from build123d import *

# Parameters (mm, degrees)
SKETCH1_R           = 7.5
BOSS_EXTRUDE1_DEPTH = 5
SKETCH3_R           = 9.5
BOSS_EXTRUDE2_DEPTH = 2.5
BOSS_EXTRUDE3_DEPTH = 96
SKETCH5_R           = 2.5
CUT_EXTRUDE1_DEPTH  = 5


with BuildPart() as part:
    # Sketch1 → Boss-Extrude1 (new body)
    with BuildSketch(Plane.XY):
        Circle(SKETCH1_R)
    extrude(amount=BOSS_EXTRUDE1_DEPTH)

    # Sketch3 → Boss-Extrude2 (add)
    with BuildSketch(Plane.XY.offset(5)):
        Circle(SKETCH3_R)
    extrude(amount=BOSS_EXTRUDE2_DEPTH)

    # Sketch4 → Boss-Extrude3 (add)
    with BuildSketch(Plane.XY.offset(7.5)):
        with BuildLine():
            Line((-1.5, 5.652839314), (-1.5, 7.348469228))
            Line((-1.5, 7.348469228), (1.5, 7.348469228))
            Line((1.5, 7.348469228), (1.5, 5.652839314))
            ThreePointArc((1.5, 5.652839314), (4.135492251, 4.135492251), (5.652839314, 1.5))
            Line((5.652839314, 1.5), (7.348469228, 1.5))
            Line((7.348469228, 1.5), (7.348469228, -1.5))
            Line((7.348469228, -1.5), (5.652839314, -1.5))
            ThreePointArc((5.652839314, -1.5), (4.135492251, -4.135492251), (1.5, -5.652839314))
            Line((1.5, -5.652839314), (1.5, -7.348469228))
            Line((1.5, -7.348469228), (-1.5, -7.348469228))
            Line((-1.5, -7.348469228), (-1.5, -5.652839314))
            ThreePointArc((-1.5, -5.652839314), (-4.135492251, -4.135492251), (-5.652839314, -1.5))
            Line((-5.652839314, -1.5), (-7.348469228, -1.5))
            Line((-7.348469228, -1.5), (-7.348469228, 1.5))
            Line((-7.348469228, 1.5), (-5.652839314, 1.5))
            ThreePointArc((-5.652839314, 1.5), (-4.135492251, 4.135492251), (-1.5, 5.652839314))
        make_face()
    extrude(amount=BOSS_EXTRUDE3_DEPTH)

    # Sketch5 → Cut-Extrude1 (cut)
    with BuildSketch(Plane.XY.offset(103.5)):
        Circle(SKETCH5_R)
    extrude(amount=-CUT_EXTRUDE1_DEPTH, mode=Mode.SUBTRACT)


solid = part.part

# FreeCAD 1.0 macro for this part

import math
import FreeCAD as App
import Part
import Sketcher
from FreeCAD import Vector

doc = App.newDocument("Part")
body = doc.addObject("PartDesign::Body", "Body")

sketch1 = doc.addObject("Sketcher::SketchObject", "Sketch")
body.addObject(sketch1)
sketch1.AttachmentSupport = (doc.XY_Plane, [""])
sketch1.MapMode = "FlatFace"
sketch1.addGeometry(Part.Circle(Vector(0, 0, 0), Vector(0, 0, 1), 8), False)
sketch1.addConstraint([
    Sketcher.Constraint("Coincident", 0, 3, -1, 1),
    Sketcher.Constraint("Diameter", 0, 15.0),
])
pad1 = doc.addObject("PartDesign::Pad", "Pad")
body.addObject(pad1)
pad1.Profile = sketch1
pad1.Length = 5

sketch2 = doc.addObject("Sketcher::SketchObject", "Sketch001")
body.addObject(sketch2)
sketch2.AttachmentSupport = (doc.XY_Plane, [""])
sketch2.MapMode = "FlatFace"
sketch2.AttachmentOffset = App.Placement(Vector(0, 0, 5), App.Rotation())
sketch2.addGeometry(Part.Circle(Vector(0, 0, 0), Vector(0, 0, 1), 10), False)
sketch2.addConstraint([
    Sketcher.Constraint("Coincident", 0, 3, -1, 1),
    Sketcher.Constraint("Diameter", 0, 19.0),
])
pad2 = doc.addObject("PartDesign::Pad", "Pad001")
body.addObject(pad2)
pad2.Profile = sketch2
pad2.Length = 2.5

sketch3 = doc.addObject("Sketcher::SketchObject", "Sketch002")
body.addObject(sketch3)
sketch3.AttachmentSupport = (doc.XY_Plane, [""])
sketch3.MapMode = "FlatFace"
sketch3.AttachmentOffset = App.Placement(Vector(0, 0, 7.5), App.Rotation())
sketch3.addGeometry([
    Part.LineSegment(Vector(-1.5, 7.3, 0), Vector(-1.5, 5.7, 0)),
    Part.ArcOfCircle(Part.Circle(Vector(0, 0, 0), Vector(0, 0, 1), 5.8), math.radians(105), math.radians(165)),
    Part.LineSegment(Vector(-5.7, 1.5, 0), Vector(-7.3, 1.5, 0)),
    Part.LineSegment(Vector(-7.3, 1.5, 0), Vector(-7.3, -1.5, 0)),
    Part.LineSegment(Vector(-7.3, -1.5, 0), Vector(-5.7, -1.5, 0)),
    Part.ArcOfCircle(Part.Circle(Vector(0, 0, 0), Vector(0, 0, 1), 5.8), math.radians(-165), math.radians(-105)),
    Part.LineSegment(Vector(-1.5, -5.7, 0), Vector(-1.5, -7.3, 0)),
    Part.LineSegment(Vector(-1.5, -7.3, 0), Vector(1.5, -7.3, 0)),
    Part.LineSegment(Vector(1.5, -7.3, 0), Vector(1.5, -5.7, 0)),
    Part.ArcOfCircle(Part.Circle(Vector(0, 0, 0), Vector(0, 0, 1), 5.8), math.radians(-75), math.radians(-15)),
    Part.LineSegment(Vector(5.7, -1.5, 0), Vector(7.3, -1.5, 0)),
    Part.LineSegment(Vector(7.3, -1.5, 0), Vector(7.3, 1.5, 0)),
    Part.LineSegment(Vector(7.3, 1.5, 0), Vector(5.7, 1.5, 0)),
    Part.ArcOfCircle(Part.Circle(Vector(0, 0, 0), Vector(0, 0, 1), 5.8), math.radians(15), math.radians(75)),
    Part.LineSegment(Vector(1.5, 5.7, 0), Vector(1.5, 7.3, 0)),
    Part.LineSegment(Vector(1.5, 7.3, 0), Vector(-1.5, 7.3, 0)),
], False)
sketch3.addConstraint([
    Sketcher.Constraint("Coincident", 0, 2, 1, 1),
    Sketcher.Constraint("Coincident", 1, 2, 2, 1),
    Sketcher.Constraint("Coincident", 2, 2, 3, 1),
    Sketcher.Constraint("Coincident", 3, 2, 4, 1),
    Sketcher.Constraint("Coincident", 4, 2, 5, 1),
    Sketcher.Constraint("Coincident", 5, 2, 6, 1),
    Sketcher.Constraint("Coincident", 6, 2, 7, 1),
    Sketcher.Constraint("Coincident", 7, 2, 8, 1),
    Sketcher.Constraint("Coincident", 8, 2, 9, 1),
    Sketcher.Constraint("Coincident", 9, 2, 10, 1),
    Sketcher.Constraint("Coincident", 10, 2, 11, 1),
    Sketcher.Constraint("Coincident", 11, 2, 12, 1),
    Sketcher.Constraint("Coincident", 12, 2, 13, 1),
    Sketcher.Constraint("Coincident", 13, 2, 14, 1),
    Sketcher.Constraint("Coincident", 14, 2, 15, 1),
    Sketcher.Constraint("Coincident", 15, 2, 0, 1),
    Sketcher.Constraint("Vertical", 0),
    Sketcher.Constraint("Horizontal", 2),
    Sketcher.Constraint("Vertical", 3),
    Sketcher.Constraint("Horizontal", 4),
    Sketcher.Constraint("Vertical", 6),
    Sketcher.Constraint("Horizontal", 7),
    Sketcher.Constraint("Vertical", 8),
    Sketcher.Constraint("Horizontal", 10),
    Sketcher.Constraint("Vertical", 11),
    Sketcher.Constraint("Horizontal", 12),
    Sketcher.Constraint("Vertical", 14),
    Sketcher.Constraint("Horizontal", 15),
    Sketcher.Constraint("Coincident", 1, 3, -1, 1),
    Sketcher.Constraint("Coincident", 5, 3, -1, 1),
    Sketcher.Constraint("Coincident", 9, 3, -1, 1),
    Sketcher.Constraint("Coincident", 13, 3, -1, 1),
    Sketcher.Constraint("Equal", 1, 5),
    Sketcher.Constraint("Equal", 5, 9),
    Sketcher.Constraint("Equal", 9, 13),
    Sketcher.Constraint("Symmetric", 2, 2, 10, 2, -1, 1),
    Sketcher.Constraint("Symmetric", 6, 2, 14, 2, -1, 1),
    Sketcher.Constraint("Horizontal", 5, 2, 8, 2),
    Sketcher.Constraint("Horizontal", 4, 2, 9, 2),
    Sketcher.Constraint("Horizontal", 2, 2, 11, 2),
    Sketcher.Constraint("Horizontal", 0, 2, 13, 2),
    Sketcher.Constraint("Equal", 12, 0),
    Sketcher.Constraint("Equal", 15, 3),
    Sketcher.Constraint("DistanceX", 7, 1, 7, 2, 3.0),
    Sketcher.Constraint("Radius", 1, 5.848469),
    Sketcher.Constraint("DistanceX", 2, 2, 2, 1, 1.69563),
])
pad3 = doc.addObject("PartDesign::Pad", "Pad002")
body.addObject(pad3)
pad3.Profile = sketch3
pad3.Length = 96

sketch4 = doc.addObject("Sketcher::SketchObject", "Sketch003")
body.addObject(sketch4)
sketch4.AttachmentSupport = (doc.XY_Plane, [""])
sketch4.MapMode = "FlatFace"
sketch4.AttachmentOffset = App.Placement(Vector(0, 0, 103.5), App.Rotation())
sketch4.addGeometry(Part.Circle(Vector(0, 0, 0), Vector(0, 0, 1), 2.5), False)
sketch4.addConstraint([
    Sketcher.Constraint("Coincident", 0, 3, -1, 1),
    Sketcher.Constraint("Diameter", 0, 5.0),
])
pocket1 = doc.addObject("PartDesign::Pocket", "Pocket")
body.addObject(pocket1)
pocket1.Profile = sketch4
pocket1.Length = 5

doc.recompute()
